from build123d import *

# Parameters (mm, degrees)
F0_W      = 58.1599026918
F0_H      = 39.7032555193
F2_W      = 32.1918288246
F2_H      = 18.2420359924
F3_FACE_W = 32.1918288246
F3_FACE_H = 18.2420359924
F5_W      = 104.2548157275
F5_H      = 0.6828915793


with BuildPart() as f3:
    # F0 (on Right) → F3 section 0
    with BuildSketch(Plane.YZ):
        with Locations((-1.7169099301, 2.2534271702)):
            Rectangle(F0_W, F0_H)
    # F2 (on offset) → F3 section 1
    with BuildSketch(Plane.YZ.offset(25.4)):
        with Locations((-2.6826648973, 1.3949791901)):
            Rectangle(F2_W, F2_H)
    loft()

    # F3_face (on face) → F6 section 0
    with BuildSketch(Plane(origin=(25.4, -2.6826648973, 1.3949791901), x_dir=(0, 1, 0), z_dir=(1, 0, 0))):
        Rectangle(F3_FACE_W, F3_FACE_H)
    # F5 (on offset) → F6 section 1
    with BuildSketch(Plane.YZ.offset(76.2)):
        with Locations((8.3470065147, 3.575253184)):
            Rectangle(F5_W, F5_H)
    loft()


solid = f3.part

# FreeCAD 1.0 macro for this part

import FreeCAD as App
import Part
import Sketcher
Q = App.Units.Quantity

doc = App.newDocument("Part")
body = doc.addObject("PartDesign::Body", "Body")

# Sketch on YZ plane
sketch1 = doc.addObject("Sketcher::SketchObject", "Sketch")
body.addObject(sketch1)
sketch1.AttachmentSupport = (doc.YZ_Plane, [""])
sketch1.MapMode = "FlatFace"
sketch1.addGeometry(Part.LineSegment(App.Vector(-30.796861, 22.105055, 0), App.Vector(-30.796861, -17.598201, 0)), False)
sketch1.addGeometry(Part.LineSegment(App.Vector(-30.796861, -17.598201, 0), App.Vector(27.363041, -17.598201, 0)), False)
sketch1.addGeometry(Part.LineSegment(App.Vector(27.363041, -17.598201, 0), App.Vector(27.363041, 22.105055, 0)), False)
sketch1.addGeometry(Part.LineSegment(App.Vector(27.363041, 22.105055, 0), App.Vector(-30.796861, 22.105055, 0)), False)
sketch1.addConstraint(Sketcher.Constraint("Coincident", 0, 2, 1, 1))
sketch1.addConstraint(Sketcher.Constraint("Coincident", 1, 2, 2, 1))
sketch1.addConstraint(Sketcher.Constraint("Coincident", 2, 2, 3, 1))
sketch1.addConstraint(Sketcher.Constraint("Coincident", 3, 2, 0, 1))
sketch1.addConstraint(Sketcher.Constraint("Vertical", 0))
sketch1.addConstraint(Sketcher.Constraint("Horizontal", 1))
sketch1.addConstraint(Sketcher.Constraint("Vertical", 2))
sketch1.addConstraint(Sketcher.Constraint("Horizontal", 3))
sketch1.addConstraint(Sketcher.Constraint("DistanceY", 0, 2, -1, 1, Q("17.598201 mm")))
sketch1.addConstraint(Sketcher.Constraint("DistanceX", 1, 1, 1, 2, Q("58.159903 mm")))
sketch1.addConstraint(Sketcher.Constraint("DistanceY", 0, 2, 0, 1, Q("39.703256 mm")))
sketch1.addConstraint(Sketcher.Constraint("DistanceX", 0, 2, -1, 1, Q("30.796861 mm")))

# Sketch on YZ plane
sketch2 = doc.addObject("Sketcher::SketchObject", "Sketch001")
body.addObject(sketch2)
sketch2.AttachmentSupport = (doc.YZ_Plane, [""])
sketch2.MapMode = "FlatFace"
sketch2.AttachmentOffset = App.Placement(App.Vector(0, 0, 25.4), App.Rotation())
sketch2.addGeometry(Part.LineSegment(App.Vector(-18.778579, 10.515997, 0), App.Vector(-18.778579, -7.726039, 0)), False)
sketch2.addGeometry(Part.LineSegment(App.Vector(-18.778579, -7.726039, 0), App.Vector(13.41325, -7.726039, 0)), False)
sketch2.addGeometry(Part.LineSegment(App.Vector(13.41325, -7.726039, 0), App.Vector(13.41325, 10.515997, 0)), False)
sketch2.addGeometry(Part.LineSegment(App.Vector(13.41325, 10.515997, 0), App.Vector(-18.778579, 10.515997, 0)), False)
sketch2.addConstraint(Sketcher.Constraint("Coincident", 0, 2, 1, 1))
sketch2.addConstraint(Sketcher.Constraint("Coincident", 1, 2, 2, 1))
sketch2.addConstraint(Sketcher.Constraint("Coincident", 2, 2, 3, 1))
sketch2.addConstraint(Sketcher.Constraint("Coincident", 3, 2, 0, 1))
sketch2.addConstraint(Sketcher.Constraint("Vertical", 0))
sketch2.addConstraint(Sketcher.Constraint("Horizontal", 1))
sketch2.addConstraint(Sketcher.Constraint("Vertical", 2))
sketch2.addConstraint(Sketcher.Constraint("Horizontal", 3))
sketch2.addConstraint(Sketcher.Constraint("DistanceX", 1, 1, 1, 2, Q("32.191829 mm")))
sketch2.addConstraint(Sketcher.Constraint("DistanceY", 0, 2, 0, 1, Q("18.242036 mm")))
sketch2.addConstraint(Sketcher.Constraint("DistanceX", 0, 2, -1, 1, Q("18.778579 mm")))
sketch2.addConstraint(Sketcher.Constraint("DistanceY", 0, 2, -1, 1, Q("7.726039 mm")))

additiveloft = doc.addObject("PartDesign::AdditiveLoft", "AdditiveLoft")
body.addObject(additiveloft)
additiveloft.Profile = sketch1
additiveloft.Sections = [sketch2]

# Sketch on YZ plane
sketch3 = doc.addObject("Sketcher::SketchObject", "Sketch002")
body.addObject(sketch3)
sketch3.AttachmentSupport = (doc.YZ_Plane, [""])
sketch3.MapMode = "FlatFace"
sketch3.AttachmentOffset = App.Placement(App.Vector(0, 0, 25.4), App.Rotation())
sketch3.addGeometry(Part.LineSegment(App.Vector(-18.778579, 10.515997, 0), App.Vector(-18.778579, -7.726039, 0)), False)
sketch3.addGeometry(Part.LineSegment(App.Vector(-18.778579, -7.726039, 0), App.Vector(13.41325, -7.726039, 0)), False)
sketch3.addGeometry(Part.LineSegment(App.Vector(13.41325, -7.726039, 0), App.Vector(13.41325, 10.515997, 0)), False)
sketch3.addGeometry(Part.LineSegment(App.Vector(13.41325, 10.515997, 0), App.Vector(-18.778579, 10.515997, 0)), False)
sketch3.addConstraint(Sketcher.Constraint("Coincident", 0, 2, 1, 1))
sketch3.addConstraint(Sketcher.Constraint("Coincident", 1, 2, 2, 1))
sketch3.addConstraint(Sketcher.Constraint("Coincident", 2, 2, 3, 1))
sketch3.addConstraint(Sketcher.Constraint("Coincident", 3, 2, 0, 1))
sketch3.addConstraint(Sketcher.Constraint("Vertical", 0))
sketch3.addConstraint(Sketcher.Constraint("Horizontal", 1))
sketch3.addConstraint(Sketcher.Constraint("Vertical", 2))
sketch3.addConstraint(Sketcher.Constraint("Horizontal", 3))
sketch3.addConstraint(Sketcher.Constraint("DistanceX", 1, 1, 1, 2, Q("32.191829 mm")))
sketch3.addConstraint(Sketcher.Constraint("DistanceY", 0, 2, 0, 1, Q("18.242036 mm")))
sketch3.addConstraint(Sketcher.Constraint("DistanceX", 0, 2, -1, 1, Q("18.778579 mm")))
sketch3.addConstraint(Sketcher.Constraint("DistanceY", 0, 2, -1, 1, Q("7.726039 mm")))

# Sketch on YZ plane
sketch4 = doc.addObject("Sketcher::SketchObject", "Sketch003")
body.addObject(sketch4)
sketch4.AttachmentSupport = (doc.YZ_Plane, [""])
sketch4.MapMode = "FlatFace"
sketch4.AttachmentOffset = App.Placement(App.Vector(0, 0, 76.2), App.Rotation())
sketch4.addGeometry(Part.LineSegment(App.Vector(-43.780401, 3.916699, 0), App.Vector(-43.780401, 3.233807, 0)), False)
sketch4.addGeometry(Part.LineSegment(App.Vector(-43.780401, 3.233807, 0), App.Vector(60.474414, 3.233807, 0)), False)
sketch4.addGeometry(Part.LineSegment(App.Vector(60.474414, 3.233807, 0), App.Vector(60.474414, 3.916699, 0)), False)
sketch4.addGeometry(Part.LineSegment(App.Vector(60.474414, 3.916699, 0), App.Vector(-43.780401, 3.916699, 0)), False)
sketch4.addConstraint(Sketcher.Constraint("Coincident", 0, 2, 1, 1))
sketch4.addConstraint(Sketcher.Constraint("Coincident", 1, 2, 2, 1))
sketch4.addConstraint(Sketcher.Constraint("Coincident", 2, 2, 3, 1))
sketch4.addConstraint(Sketcher.Constraint("Coincident", 3, 2, 0, 1))
sketch4.addConstraint(Sketcher.Constraint("Vertical", 0))
sketch4.addConstraint(Sketcher.Constraint("Horizontal", 1))
sketch4.addConstraint(Sketcher.Constraint("Vertical", 2))
sketch4.addConstraint(Sketcher.Constraint("Horizontal", 3))
sketch4.addConstraint(Sketcher.Constraint("DistanceY", 0, 2, 0, 1, Q("0.682892 mm")))
sketch4.addConstraint(Sketcher.Constraint("DistanceX", 0, 2, -1, 1, Q("43.780401 mm")))
sketch4.addConstraint(Sketcher.Constraint("DistanceY", -1, 1, 2, 2, Q("3.916699 mm")))
sketch4.addConstraint(Sketcher.Constraint("DistanceX", 1, 1, 1, 2, Q("104.254816 mm")))

additiveloft2 = doc.addObject("PartDesign::AdditiveLoft", "AdditiveLoft001")
body.addObject(additiveloft2)
additiveloft2.Profile = sketch3
additiveloft2.Sections = [sketch4]

doc.recompute()
